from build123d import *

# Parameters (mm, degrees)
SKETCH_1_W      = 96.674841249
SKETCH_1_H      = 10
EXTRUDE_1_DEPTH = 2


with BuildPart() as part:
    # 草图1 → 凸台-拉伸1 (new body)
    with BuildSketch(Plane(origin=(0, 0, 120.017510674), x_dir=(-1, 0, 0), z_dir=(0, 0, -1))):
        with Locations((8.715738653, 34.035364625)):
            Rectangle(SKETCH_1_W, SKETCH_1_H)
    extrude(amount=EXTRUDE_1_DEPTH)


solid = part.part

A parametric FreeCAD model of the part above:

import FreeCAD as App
import Part
import Sketcher
from FreeCAD import Vector


def add_polygon(sketch, points):
    """Adds a closed chain of lines whose ends are joined by coincident constraints."""
    first, n = sketch.GeometryCount, len(points)
    for a, b in zip(points, points[1:] + points[:1]):
        sketch.addGeometry(Part.LineSegment(App.Vector(*a, 0), App.Vector(*b, 0)), False)
    for i in range(n):
        sketch.addConstraint(Sketcher.Constraint("Coincident", first + i, 2, first + (i + 1) % n, 1))

doc = App.newDocument("Part")
body = doc.addObject("PartDesign::Body", "Body")

sketch1 = doc.addObject("Sketcher::SketchObject", "Sketch")
body.addObject(sketch1)
sketch1.AttachmentSupport = (doc.XY_Plane, [""])
sketch1.MapMode = "FlatFace"
sketch1.AttachmentOffset = App.Placement(Vector(0, 0, 120.017511), App.Rotation())
add_polygon(sketch1, [(40, 39), (40, 29), (-57, 29), (-57, 39)])
sketch1.addConstraint([
    Sketcher.Constraint("Vertical", 0),
    Sketcher.Constraint("Horizontal", 1),
    Sketcher.Constraint("Vertical", 2),
    Sketcher.Constraint("Horizontal", 3),
    Sketcher.Constraint("DistanceY", 0, 2, 0, 1, 10.0),
    Sketcher.Constraint("DistanceX", 1, 2, 1, 1, 96.674841),
    Sketcher.Constraint("DistanceX", -1, 1, 0, 2, 39.621682),
    Sketcher.Constraint("DistanceY", -1, 1, 0, 2, 29.035365),
])
pad1 = doc.addObject("PartDesign::Pad", "Pad")
body.addObject(pad1)
pad1.Profile = sketch1
pad1.Length = 2
pad1.Reversed = True

doc.recompute()
